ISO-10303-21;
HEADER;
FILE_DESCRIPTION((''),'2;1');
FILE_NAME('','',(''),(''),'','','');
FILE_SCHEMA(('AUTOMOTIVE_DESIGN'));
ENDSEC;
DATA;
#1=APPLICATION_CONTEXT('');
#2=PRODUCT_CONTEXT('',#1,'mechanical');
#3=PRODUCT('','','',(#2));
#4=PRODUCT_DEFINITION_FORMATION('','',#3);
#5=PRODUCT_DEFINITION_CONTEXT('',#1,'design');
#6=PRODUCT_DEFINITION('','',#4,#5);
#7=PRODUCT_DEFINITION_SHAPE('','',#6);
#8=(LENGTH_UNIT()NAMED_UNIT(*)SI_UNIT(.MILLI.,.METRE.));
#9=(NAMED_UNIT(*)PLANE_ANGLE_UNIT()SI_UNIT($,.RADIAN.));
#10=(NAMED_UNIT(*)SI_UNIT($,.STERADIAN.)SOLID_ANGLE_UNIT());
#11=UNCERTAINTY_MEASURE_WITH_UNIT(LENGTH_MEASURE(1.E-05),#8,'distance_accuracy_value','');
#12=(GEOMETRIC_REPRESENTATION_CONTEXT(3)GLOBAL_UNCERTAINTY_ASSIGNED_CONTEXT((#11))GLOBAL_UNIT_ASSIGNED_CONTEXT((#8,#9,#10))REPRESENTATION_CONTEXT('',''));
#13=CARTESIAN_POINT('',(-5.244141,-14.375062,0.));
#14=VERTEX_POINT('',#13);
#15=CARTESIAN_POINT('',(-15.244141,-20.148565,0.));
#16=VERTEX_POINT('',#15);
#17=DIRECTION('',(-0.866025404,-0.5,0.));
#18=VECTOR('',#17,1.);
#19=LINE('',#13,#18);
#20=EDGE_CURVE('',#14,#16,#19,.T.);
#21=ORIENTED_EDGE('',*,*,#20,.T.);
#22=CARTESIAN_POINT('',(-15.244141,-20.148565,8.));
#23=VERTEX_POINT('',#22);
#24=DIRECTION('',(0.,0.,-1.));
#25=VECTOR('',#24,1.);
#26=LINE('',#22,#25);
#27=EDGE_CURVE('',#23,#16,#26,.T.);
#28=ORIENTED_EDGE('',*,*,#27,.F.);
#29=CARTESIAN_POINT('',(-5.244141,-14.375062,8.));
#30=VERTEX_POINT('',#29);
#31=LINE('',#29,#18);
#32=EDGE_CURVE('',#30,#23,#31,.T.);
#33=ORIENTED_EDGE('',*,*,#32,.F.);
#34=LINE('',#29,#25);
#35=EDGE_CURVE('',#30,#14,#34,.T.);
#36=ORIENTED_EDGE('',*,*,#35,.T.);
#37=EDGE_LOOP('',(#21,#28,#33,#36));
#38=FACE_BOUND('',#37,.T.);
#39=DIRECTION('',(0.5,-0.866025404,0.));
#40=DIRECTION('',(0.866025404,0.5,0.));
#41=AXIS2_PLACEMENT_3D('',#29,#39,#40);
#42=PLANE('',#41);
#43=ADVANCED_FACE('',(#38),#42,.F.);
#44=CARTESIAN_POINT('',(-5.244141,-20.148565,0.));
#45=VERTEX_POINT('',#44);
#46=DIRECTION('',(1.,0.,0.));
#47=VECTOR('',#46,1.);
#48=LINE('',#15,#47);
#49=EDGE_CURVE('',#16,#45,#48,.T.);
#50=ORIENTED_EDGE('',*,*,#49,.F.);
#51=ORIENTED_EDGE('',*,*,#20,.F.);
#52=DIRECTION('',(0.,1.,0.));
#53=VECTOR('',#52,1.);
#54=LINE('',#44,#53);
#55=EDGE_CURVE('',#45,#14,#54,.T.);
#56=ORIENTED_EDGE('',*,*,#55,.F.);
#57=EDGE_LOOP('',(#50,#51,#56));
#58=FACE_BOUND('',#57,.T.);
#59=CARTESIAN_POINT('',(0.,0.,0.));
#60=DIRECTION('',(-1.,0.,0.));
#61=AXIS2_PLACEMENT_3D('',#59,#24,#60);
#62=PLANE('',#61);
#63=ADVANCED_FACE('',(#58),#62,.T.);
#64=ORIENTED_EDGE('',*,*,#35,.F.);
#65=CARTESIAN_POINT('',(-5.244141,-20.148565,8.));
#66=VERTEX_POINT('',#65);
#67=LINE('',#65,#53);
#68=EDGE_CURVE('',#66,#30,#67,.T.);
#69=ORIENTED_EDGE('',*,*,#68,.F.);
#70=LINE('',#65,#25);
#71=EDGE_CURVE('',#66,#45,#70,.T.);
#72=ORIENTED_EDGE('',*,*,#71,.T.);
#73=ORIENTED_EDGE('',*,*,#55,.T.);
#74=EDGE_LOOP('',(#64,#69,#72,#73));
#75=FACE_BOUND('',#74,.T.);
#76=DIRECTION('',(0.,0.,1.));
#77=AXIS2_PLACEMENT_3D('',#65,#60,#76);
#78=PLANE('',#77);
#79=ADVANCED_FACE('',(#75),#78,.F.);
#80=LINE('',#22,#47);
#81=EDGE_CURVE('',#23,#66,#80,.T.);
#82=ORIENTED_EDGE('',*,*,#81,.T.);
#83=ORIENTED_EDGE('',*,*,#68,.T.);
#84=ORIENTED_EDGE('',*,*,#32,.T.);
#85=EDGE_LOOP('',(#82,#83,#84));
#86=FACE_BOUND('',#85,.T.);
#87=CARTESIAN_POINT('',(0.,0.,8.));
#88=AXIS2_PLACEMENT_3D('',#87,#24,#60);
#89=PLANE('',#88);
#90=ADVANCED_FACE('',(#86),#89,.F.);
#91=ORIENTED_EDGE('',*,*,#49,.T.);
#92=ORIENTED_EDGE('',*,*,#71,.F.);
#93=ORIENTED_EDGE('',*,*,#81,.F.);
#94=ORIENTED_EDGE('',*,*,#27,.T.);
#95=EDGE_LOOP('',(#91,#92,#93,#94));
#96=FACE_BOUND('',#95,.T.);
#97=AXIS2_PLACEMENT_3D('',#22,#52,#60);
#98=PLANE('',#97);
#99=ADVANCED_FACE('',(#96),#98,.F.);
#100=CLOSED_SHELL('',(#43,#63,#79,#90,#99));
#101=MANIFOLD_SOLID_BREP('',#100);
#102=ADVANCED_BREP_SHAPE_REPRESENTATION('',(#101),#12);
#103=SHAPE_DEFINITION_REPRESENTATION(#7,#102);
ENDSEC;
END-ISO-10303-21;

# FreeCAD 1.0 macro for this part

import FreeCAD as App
import Part
import Sketcher

V = App.Vector
Q = App.Units.Quantity


def add_polygon(sketch, points):
    """Adds a closed chain of lines whose ends are joined by coincident constraints."""
    first, n = sketch.GeometryCount, len(points)
    for a, b in zip(points, points[1:] + points[:1]):
        sketch.addGeometry(Part.LineSegment(App.Vector(*a, 0), App.Vector(*b, 0)), False)
    for i in range(n):
        sketch.addConstraint(Sketcher.Constraint("Coincident", first + i, 2, first + (i + 1) % n, 1))

doc = App.newDocument("Part")
body = doc.addObject("PartDesign::Body", "Body")

# Sketch on XY plane
sketch1 = body.newObject("Sketcher::SketchObject", "Sketch")
sketch1.AttachmentSupport = (doc.getObject("XY_Plane"), [""])
sketch1.MapMode = "FlatFace"
add_polygon(sketch1, [(-15, -20), (-5, -20), (-5, -14)])  # lines 0-2
sketch1.addConstraint(Sketcher.Constraint("Horizontal", 0))
sketch1.addConstraint(Sketcher.Constraint("Vertical", 1))
sketch1.addConstraint(Sketcher.Constraint("DistanceX", 0, 1, 0, 2, 10.0))
sketch1.addConstraint(Sketcher.Constraint("Angle", 2, Q("-150 deg")))
sketch1.addConstraint(Sketcher.Constraint("DistanceX", 0, 2, -1, 1, 5.244141))
sketch1.addConstraint(Sketcher.Constraint("DistanceY", 0, 2, -1, 1, 20.148565))
pad1 = body.newObject("PartDesign::Pad", "Pad")
pad1.Profile = sketch1
pad1.Length = 8

doc.recompute()
